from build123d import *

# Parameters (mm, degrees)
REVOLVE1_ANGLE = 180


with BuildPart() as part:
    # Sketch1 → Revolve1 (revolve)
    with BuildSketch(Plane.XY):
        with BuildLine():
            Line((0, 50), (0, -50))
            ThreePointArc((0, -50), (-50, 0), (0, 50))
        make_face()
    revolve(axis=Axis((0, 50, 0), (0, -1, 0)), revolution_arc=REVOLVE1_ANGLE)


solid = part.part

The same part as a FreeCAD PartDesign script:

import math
import FreeCAD as App
import Part
import Sketcher
from FreeCAD import Vector

doc = App.newDocument("Part")
body = doc.addObject("PartDesign::Body", "Body")

# Sketch on XY plane
sketch1 = body.newObject("Sketcher::SketchObject", "Sketch")
sketch1.AttachmentSupport = (doc.getObject("XY_Plane"), [""])
sketch1.MapMode = "FlatFace"
sketch1.addGeometry([
    Part.LineSegment(Vector(0, -50, 0), Vector(0, 50, 0)),
    Part.ArcOfCircle(Part.Circle(Vector(0, 0, 0), Vector(0, 0, 1), 50), math.radians(90), math.radians(270)),
], False)
sketch1.addConstraint([
    Sketcher.Constraint("Coincident", 0, 1, 1, 2),
    Sketcher.Constraint("Coincident", 1, 1, 0, 2),
    Sketcher.Constraint("Vertical", 0),
    Sketcher.Constraint("Coincident", 1, 3, -1, 1),
    Sketcher.Constraint("PointOnObject", 0, 1, -2),
    Sketcher.Constraint("Radius", 1, 50.0),
])
revolution = body.newObject("PartDesign::Revolution", "Revolution")
revolution.Profile = sketch1
revolution.ReferenceAxis = (sketch1, ["V_Axis"])
revolution.Angle = 180
revolution.Reversed = True

doc.recompute()
